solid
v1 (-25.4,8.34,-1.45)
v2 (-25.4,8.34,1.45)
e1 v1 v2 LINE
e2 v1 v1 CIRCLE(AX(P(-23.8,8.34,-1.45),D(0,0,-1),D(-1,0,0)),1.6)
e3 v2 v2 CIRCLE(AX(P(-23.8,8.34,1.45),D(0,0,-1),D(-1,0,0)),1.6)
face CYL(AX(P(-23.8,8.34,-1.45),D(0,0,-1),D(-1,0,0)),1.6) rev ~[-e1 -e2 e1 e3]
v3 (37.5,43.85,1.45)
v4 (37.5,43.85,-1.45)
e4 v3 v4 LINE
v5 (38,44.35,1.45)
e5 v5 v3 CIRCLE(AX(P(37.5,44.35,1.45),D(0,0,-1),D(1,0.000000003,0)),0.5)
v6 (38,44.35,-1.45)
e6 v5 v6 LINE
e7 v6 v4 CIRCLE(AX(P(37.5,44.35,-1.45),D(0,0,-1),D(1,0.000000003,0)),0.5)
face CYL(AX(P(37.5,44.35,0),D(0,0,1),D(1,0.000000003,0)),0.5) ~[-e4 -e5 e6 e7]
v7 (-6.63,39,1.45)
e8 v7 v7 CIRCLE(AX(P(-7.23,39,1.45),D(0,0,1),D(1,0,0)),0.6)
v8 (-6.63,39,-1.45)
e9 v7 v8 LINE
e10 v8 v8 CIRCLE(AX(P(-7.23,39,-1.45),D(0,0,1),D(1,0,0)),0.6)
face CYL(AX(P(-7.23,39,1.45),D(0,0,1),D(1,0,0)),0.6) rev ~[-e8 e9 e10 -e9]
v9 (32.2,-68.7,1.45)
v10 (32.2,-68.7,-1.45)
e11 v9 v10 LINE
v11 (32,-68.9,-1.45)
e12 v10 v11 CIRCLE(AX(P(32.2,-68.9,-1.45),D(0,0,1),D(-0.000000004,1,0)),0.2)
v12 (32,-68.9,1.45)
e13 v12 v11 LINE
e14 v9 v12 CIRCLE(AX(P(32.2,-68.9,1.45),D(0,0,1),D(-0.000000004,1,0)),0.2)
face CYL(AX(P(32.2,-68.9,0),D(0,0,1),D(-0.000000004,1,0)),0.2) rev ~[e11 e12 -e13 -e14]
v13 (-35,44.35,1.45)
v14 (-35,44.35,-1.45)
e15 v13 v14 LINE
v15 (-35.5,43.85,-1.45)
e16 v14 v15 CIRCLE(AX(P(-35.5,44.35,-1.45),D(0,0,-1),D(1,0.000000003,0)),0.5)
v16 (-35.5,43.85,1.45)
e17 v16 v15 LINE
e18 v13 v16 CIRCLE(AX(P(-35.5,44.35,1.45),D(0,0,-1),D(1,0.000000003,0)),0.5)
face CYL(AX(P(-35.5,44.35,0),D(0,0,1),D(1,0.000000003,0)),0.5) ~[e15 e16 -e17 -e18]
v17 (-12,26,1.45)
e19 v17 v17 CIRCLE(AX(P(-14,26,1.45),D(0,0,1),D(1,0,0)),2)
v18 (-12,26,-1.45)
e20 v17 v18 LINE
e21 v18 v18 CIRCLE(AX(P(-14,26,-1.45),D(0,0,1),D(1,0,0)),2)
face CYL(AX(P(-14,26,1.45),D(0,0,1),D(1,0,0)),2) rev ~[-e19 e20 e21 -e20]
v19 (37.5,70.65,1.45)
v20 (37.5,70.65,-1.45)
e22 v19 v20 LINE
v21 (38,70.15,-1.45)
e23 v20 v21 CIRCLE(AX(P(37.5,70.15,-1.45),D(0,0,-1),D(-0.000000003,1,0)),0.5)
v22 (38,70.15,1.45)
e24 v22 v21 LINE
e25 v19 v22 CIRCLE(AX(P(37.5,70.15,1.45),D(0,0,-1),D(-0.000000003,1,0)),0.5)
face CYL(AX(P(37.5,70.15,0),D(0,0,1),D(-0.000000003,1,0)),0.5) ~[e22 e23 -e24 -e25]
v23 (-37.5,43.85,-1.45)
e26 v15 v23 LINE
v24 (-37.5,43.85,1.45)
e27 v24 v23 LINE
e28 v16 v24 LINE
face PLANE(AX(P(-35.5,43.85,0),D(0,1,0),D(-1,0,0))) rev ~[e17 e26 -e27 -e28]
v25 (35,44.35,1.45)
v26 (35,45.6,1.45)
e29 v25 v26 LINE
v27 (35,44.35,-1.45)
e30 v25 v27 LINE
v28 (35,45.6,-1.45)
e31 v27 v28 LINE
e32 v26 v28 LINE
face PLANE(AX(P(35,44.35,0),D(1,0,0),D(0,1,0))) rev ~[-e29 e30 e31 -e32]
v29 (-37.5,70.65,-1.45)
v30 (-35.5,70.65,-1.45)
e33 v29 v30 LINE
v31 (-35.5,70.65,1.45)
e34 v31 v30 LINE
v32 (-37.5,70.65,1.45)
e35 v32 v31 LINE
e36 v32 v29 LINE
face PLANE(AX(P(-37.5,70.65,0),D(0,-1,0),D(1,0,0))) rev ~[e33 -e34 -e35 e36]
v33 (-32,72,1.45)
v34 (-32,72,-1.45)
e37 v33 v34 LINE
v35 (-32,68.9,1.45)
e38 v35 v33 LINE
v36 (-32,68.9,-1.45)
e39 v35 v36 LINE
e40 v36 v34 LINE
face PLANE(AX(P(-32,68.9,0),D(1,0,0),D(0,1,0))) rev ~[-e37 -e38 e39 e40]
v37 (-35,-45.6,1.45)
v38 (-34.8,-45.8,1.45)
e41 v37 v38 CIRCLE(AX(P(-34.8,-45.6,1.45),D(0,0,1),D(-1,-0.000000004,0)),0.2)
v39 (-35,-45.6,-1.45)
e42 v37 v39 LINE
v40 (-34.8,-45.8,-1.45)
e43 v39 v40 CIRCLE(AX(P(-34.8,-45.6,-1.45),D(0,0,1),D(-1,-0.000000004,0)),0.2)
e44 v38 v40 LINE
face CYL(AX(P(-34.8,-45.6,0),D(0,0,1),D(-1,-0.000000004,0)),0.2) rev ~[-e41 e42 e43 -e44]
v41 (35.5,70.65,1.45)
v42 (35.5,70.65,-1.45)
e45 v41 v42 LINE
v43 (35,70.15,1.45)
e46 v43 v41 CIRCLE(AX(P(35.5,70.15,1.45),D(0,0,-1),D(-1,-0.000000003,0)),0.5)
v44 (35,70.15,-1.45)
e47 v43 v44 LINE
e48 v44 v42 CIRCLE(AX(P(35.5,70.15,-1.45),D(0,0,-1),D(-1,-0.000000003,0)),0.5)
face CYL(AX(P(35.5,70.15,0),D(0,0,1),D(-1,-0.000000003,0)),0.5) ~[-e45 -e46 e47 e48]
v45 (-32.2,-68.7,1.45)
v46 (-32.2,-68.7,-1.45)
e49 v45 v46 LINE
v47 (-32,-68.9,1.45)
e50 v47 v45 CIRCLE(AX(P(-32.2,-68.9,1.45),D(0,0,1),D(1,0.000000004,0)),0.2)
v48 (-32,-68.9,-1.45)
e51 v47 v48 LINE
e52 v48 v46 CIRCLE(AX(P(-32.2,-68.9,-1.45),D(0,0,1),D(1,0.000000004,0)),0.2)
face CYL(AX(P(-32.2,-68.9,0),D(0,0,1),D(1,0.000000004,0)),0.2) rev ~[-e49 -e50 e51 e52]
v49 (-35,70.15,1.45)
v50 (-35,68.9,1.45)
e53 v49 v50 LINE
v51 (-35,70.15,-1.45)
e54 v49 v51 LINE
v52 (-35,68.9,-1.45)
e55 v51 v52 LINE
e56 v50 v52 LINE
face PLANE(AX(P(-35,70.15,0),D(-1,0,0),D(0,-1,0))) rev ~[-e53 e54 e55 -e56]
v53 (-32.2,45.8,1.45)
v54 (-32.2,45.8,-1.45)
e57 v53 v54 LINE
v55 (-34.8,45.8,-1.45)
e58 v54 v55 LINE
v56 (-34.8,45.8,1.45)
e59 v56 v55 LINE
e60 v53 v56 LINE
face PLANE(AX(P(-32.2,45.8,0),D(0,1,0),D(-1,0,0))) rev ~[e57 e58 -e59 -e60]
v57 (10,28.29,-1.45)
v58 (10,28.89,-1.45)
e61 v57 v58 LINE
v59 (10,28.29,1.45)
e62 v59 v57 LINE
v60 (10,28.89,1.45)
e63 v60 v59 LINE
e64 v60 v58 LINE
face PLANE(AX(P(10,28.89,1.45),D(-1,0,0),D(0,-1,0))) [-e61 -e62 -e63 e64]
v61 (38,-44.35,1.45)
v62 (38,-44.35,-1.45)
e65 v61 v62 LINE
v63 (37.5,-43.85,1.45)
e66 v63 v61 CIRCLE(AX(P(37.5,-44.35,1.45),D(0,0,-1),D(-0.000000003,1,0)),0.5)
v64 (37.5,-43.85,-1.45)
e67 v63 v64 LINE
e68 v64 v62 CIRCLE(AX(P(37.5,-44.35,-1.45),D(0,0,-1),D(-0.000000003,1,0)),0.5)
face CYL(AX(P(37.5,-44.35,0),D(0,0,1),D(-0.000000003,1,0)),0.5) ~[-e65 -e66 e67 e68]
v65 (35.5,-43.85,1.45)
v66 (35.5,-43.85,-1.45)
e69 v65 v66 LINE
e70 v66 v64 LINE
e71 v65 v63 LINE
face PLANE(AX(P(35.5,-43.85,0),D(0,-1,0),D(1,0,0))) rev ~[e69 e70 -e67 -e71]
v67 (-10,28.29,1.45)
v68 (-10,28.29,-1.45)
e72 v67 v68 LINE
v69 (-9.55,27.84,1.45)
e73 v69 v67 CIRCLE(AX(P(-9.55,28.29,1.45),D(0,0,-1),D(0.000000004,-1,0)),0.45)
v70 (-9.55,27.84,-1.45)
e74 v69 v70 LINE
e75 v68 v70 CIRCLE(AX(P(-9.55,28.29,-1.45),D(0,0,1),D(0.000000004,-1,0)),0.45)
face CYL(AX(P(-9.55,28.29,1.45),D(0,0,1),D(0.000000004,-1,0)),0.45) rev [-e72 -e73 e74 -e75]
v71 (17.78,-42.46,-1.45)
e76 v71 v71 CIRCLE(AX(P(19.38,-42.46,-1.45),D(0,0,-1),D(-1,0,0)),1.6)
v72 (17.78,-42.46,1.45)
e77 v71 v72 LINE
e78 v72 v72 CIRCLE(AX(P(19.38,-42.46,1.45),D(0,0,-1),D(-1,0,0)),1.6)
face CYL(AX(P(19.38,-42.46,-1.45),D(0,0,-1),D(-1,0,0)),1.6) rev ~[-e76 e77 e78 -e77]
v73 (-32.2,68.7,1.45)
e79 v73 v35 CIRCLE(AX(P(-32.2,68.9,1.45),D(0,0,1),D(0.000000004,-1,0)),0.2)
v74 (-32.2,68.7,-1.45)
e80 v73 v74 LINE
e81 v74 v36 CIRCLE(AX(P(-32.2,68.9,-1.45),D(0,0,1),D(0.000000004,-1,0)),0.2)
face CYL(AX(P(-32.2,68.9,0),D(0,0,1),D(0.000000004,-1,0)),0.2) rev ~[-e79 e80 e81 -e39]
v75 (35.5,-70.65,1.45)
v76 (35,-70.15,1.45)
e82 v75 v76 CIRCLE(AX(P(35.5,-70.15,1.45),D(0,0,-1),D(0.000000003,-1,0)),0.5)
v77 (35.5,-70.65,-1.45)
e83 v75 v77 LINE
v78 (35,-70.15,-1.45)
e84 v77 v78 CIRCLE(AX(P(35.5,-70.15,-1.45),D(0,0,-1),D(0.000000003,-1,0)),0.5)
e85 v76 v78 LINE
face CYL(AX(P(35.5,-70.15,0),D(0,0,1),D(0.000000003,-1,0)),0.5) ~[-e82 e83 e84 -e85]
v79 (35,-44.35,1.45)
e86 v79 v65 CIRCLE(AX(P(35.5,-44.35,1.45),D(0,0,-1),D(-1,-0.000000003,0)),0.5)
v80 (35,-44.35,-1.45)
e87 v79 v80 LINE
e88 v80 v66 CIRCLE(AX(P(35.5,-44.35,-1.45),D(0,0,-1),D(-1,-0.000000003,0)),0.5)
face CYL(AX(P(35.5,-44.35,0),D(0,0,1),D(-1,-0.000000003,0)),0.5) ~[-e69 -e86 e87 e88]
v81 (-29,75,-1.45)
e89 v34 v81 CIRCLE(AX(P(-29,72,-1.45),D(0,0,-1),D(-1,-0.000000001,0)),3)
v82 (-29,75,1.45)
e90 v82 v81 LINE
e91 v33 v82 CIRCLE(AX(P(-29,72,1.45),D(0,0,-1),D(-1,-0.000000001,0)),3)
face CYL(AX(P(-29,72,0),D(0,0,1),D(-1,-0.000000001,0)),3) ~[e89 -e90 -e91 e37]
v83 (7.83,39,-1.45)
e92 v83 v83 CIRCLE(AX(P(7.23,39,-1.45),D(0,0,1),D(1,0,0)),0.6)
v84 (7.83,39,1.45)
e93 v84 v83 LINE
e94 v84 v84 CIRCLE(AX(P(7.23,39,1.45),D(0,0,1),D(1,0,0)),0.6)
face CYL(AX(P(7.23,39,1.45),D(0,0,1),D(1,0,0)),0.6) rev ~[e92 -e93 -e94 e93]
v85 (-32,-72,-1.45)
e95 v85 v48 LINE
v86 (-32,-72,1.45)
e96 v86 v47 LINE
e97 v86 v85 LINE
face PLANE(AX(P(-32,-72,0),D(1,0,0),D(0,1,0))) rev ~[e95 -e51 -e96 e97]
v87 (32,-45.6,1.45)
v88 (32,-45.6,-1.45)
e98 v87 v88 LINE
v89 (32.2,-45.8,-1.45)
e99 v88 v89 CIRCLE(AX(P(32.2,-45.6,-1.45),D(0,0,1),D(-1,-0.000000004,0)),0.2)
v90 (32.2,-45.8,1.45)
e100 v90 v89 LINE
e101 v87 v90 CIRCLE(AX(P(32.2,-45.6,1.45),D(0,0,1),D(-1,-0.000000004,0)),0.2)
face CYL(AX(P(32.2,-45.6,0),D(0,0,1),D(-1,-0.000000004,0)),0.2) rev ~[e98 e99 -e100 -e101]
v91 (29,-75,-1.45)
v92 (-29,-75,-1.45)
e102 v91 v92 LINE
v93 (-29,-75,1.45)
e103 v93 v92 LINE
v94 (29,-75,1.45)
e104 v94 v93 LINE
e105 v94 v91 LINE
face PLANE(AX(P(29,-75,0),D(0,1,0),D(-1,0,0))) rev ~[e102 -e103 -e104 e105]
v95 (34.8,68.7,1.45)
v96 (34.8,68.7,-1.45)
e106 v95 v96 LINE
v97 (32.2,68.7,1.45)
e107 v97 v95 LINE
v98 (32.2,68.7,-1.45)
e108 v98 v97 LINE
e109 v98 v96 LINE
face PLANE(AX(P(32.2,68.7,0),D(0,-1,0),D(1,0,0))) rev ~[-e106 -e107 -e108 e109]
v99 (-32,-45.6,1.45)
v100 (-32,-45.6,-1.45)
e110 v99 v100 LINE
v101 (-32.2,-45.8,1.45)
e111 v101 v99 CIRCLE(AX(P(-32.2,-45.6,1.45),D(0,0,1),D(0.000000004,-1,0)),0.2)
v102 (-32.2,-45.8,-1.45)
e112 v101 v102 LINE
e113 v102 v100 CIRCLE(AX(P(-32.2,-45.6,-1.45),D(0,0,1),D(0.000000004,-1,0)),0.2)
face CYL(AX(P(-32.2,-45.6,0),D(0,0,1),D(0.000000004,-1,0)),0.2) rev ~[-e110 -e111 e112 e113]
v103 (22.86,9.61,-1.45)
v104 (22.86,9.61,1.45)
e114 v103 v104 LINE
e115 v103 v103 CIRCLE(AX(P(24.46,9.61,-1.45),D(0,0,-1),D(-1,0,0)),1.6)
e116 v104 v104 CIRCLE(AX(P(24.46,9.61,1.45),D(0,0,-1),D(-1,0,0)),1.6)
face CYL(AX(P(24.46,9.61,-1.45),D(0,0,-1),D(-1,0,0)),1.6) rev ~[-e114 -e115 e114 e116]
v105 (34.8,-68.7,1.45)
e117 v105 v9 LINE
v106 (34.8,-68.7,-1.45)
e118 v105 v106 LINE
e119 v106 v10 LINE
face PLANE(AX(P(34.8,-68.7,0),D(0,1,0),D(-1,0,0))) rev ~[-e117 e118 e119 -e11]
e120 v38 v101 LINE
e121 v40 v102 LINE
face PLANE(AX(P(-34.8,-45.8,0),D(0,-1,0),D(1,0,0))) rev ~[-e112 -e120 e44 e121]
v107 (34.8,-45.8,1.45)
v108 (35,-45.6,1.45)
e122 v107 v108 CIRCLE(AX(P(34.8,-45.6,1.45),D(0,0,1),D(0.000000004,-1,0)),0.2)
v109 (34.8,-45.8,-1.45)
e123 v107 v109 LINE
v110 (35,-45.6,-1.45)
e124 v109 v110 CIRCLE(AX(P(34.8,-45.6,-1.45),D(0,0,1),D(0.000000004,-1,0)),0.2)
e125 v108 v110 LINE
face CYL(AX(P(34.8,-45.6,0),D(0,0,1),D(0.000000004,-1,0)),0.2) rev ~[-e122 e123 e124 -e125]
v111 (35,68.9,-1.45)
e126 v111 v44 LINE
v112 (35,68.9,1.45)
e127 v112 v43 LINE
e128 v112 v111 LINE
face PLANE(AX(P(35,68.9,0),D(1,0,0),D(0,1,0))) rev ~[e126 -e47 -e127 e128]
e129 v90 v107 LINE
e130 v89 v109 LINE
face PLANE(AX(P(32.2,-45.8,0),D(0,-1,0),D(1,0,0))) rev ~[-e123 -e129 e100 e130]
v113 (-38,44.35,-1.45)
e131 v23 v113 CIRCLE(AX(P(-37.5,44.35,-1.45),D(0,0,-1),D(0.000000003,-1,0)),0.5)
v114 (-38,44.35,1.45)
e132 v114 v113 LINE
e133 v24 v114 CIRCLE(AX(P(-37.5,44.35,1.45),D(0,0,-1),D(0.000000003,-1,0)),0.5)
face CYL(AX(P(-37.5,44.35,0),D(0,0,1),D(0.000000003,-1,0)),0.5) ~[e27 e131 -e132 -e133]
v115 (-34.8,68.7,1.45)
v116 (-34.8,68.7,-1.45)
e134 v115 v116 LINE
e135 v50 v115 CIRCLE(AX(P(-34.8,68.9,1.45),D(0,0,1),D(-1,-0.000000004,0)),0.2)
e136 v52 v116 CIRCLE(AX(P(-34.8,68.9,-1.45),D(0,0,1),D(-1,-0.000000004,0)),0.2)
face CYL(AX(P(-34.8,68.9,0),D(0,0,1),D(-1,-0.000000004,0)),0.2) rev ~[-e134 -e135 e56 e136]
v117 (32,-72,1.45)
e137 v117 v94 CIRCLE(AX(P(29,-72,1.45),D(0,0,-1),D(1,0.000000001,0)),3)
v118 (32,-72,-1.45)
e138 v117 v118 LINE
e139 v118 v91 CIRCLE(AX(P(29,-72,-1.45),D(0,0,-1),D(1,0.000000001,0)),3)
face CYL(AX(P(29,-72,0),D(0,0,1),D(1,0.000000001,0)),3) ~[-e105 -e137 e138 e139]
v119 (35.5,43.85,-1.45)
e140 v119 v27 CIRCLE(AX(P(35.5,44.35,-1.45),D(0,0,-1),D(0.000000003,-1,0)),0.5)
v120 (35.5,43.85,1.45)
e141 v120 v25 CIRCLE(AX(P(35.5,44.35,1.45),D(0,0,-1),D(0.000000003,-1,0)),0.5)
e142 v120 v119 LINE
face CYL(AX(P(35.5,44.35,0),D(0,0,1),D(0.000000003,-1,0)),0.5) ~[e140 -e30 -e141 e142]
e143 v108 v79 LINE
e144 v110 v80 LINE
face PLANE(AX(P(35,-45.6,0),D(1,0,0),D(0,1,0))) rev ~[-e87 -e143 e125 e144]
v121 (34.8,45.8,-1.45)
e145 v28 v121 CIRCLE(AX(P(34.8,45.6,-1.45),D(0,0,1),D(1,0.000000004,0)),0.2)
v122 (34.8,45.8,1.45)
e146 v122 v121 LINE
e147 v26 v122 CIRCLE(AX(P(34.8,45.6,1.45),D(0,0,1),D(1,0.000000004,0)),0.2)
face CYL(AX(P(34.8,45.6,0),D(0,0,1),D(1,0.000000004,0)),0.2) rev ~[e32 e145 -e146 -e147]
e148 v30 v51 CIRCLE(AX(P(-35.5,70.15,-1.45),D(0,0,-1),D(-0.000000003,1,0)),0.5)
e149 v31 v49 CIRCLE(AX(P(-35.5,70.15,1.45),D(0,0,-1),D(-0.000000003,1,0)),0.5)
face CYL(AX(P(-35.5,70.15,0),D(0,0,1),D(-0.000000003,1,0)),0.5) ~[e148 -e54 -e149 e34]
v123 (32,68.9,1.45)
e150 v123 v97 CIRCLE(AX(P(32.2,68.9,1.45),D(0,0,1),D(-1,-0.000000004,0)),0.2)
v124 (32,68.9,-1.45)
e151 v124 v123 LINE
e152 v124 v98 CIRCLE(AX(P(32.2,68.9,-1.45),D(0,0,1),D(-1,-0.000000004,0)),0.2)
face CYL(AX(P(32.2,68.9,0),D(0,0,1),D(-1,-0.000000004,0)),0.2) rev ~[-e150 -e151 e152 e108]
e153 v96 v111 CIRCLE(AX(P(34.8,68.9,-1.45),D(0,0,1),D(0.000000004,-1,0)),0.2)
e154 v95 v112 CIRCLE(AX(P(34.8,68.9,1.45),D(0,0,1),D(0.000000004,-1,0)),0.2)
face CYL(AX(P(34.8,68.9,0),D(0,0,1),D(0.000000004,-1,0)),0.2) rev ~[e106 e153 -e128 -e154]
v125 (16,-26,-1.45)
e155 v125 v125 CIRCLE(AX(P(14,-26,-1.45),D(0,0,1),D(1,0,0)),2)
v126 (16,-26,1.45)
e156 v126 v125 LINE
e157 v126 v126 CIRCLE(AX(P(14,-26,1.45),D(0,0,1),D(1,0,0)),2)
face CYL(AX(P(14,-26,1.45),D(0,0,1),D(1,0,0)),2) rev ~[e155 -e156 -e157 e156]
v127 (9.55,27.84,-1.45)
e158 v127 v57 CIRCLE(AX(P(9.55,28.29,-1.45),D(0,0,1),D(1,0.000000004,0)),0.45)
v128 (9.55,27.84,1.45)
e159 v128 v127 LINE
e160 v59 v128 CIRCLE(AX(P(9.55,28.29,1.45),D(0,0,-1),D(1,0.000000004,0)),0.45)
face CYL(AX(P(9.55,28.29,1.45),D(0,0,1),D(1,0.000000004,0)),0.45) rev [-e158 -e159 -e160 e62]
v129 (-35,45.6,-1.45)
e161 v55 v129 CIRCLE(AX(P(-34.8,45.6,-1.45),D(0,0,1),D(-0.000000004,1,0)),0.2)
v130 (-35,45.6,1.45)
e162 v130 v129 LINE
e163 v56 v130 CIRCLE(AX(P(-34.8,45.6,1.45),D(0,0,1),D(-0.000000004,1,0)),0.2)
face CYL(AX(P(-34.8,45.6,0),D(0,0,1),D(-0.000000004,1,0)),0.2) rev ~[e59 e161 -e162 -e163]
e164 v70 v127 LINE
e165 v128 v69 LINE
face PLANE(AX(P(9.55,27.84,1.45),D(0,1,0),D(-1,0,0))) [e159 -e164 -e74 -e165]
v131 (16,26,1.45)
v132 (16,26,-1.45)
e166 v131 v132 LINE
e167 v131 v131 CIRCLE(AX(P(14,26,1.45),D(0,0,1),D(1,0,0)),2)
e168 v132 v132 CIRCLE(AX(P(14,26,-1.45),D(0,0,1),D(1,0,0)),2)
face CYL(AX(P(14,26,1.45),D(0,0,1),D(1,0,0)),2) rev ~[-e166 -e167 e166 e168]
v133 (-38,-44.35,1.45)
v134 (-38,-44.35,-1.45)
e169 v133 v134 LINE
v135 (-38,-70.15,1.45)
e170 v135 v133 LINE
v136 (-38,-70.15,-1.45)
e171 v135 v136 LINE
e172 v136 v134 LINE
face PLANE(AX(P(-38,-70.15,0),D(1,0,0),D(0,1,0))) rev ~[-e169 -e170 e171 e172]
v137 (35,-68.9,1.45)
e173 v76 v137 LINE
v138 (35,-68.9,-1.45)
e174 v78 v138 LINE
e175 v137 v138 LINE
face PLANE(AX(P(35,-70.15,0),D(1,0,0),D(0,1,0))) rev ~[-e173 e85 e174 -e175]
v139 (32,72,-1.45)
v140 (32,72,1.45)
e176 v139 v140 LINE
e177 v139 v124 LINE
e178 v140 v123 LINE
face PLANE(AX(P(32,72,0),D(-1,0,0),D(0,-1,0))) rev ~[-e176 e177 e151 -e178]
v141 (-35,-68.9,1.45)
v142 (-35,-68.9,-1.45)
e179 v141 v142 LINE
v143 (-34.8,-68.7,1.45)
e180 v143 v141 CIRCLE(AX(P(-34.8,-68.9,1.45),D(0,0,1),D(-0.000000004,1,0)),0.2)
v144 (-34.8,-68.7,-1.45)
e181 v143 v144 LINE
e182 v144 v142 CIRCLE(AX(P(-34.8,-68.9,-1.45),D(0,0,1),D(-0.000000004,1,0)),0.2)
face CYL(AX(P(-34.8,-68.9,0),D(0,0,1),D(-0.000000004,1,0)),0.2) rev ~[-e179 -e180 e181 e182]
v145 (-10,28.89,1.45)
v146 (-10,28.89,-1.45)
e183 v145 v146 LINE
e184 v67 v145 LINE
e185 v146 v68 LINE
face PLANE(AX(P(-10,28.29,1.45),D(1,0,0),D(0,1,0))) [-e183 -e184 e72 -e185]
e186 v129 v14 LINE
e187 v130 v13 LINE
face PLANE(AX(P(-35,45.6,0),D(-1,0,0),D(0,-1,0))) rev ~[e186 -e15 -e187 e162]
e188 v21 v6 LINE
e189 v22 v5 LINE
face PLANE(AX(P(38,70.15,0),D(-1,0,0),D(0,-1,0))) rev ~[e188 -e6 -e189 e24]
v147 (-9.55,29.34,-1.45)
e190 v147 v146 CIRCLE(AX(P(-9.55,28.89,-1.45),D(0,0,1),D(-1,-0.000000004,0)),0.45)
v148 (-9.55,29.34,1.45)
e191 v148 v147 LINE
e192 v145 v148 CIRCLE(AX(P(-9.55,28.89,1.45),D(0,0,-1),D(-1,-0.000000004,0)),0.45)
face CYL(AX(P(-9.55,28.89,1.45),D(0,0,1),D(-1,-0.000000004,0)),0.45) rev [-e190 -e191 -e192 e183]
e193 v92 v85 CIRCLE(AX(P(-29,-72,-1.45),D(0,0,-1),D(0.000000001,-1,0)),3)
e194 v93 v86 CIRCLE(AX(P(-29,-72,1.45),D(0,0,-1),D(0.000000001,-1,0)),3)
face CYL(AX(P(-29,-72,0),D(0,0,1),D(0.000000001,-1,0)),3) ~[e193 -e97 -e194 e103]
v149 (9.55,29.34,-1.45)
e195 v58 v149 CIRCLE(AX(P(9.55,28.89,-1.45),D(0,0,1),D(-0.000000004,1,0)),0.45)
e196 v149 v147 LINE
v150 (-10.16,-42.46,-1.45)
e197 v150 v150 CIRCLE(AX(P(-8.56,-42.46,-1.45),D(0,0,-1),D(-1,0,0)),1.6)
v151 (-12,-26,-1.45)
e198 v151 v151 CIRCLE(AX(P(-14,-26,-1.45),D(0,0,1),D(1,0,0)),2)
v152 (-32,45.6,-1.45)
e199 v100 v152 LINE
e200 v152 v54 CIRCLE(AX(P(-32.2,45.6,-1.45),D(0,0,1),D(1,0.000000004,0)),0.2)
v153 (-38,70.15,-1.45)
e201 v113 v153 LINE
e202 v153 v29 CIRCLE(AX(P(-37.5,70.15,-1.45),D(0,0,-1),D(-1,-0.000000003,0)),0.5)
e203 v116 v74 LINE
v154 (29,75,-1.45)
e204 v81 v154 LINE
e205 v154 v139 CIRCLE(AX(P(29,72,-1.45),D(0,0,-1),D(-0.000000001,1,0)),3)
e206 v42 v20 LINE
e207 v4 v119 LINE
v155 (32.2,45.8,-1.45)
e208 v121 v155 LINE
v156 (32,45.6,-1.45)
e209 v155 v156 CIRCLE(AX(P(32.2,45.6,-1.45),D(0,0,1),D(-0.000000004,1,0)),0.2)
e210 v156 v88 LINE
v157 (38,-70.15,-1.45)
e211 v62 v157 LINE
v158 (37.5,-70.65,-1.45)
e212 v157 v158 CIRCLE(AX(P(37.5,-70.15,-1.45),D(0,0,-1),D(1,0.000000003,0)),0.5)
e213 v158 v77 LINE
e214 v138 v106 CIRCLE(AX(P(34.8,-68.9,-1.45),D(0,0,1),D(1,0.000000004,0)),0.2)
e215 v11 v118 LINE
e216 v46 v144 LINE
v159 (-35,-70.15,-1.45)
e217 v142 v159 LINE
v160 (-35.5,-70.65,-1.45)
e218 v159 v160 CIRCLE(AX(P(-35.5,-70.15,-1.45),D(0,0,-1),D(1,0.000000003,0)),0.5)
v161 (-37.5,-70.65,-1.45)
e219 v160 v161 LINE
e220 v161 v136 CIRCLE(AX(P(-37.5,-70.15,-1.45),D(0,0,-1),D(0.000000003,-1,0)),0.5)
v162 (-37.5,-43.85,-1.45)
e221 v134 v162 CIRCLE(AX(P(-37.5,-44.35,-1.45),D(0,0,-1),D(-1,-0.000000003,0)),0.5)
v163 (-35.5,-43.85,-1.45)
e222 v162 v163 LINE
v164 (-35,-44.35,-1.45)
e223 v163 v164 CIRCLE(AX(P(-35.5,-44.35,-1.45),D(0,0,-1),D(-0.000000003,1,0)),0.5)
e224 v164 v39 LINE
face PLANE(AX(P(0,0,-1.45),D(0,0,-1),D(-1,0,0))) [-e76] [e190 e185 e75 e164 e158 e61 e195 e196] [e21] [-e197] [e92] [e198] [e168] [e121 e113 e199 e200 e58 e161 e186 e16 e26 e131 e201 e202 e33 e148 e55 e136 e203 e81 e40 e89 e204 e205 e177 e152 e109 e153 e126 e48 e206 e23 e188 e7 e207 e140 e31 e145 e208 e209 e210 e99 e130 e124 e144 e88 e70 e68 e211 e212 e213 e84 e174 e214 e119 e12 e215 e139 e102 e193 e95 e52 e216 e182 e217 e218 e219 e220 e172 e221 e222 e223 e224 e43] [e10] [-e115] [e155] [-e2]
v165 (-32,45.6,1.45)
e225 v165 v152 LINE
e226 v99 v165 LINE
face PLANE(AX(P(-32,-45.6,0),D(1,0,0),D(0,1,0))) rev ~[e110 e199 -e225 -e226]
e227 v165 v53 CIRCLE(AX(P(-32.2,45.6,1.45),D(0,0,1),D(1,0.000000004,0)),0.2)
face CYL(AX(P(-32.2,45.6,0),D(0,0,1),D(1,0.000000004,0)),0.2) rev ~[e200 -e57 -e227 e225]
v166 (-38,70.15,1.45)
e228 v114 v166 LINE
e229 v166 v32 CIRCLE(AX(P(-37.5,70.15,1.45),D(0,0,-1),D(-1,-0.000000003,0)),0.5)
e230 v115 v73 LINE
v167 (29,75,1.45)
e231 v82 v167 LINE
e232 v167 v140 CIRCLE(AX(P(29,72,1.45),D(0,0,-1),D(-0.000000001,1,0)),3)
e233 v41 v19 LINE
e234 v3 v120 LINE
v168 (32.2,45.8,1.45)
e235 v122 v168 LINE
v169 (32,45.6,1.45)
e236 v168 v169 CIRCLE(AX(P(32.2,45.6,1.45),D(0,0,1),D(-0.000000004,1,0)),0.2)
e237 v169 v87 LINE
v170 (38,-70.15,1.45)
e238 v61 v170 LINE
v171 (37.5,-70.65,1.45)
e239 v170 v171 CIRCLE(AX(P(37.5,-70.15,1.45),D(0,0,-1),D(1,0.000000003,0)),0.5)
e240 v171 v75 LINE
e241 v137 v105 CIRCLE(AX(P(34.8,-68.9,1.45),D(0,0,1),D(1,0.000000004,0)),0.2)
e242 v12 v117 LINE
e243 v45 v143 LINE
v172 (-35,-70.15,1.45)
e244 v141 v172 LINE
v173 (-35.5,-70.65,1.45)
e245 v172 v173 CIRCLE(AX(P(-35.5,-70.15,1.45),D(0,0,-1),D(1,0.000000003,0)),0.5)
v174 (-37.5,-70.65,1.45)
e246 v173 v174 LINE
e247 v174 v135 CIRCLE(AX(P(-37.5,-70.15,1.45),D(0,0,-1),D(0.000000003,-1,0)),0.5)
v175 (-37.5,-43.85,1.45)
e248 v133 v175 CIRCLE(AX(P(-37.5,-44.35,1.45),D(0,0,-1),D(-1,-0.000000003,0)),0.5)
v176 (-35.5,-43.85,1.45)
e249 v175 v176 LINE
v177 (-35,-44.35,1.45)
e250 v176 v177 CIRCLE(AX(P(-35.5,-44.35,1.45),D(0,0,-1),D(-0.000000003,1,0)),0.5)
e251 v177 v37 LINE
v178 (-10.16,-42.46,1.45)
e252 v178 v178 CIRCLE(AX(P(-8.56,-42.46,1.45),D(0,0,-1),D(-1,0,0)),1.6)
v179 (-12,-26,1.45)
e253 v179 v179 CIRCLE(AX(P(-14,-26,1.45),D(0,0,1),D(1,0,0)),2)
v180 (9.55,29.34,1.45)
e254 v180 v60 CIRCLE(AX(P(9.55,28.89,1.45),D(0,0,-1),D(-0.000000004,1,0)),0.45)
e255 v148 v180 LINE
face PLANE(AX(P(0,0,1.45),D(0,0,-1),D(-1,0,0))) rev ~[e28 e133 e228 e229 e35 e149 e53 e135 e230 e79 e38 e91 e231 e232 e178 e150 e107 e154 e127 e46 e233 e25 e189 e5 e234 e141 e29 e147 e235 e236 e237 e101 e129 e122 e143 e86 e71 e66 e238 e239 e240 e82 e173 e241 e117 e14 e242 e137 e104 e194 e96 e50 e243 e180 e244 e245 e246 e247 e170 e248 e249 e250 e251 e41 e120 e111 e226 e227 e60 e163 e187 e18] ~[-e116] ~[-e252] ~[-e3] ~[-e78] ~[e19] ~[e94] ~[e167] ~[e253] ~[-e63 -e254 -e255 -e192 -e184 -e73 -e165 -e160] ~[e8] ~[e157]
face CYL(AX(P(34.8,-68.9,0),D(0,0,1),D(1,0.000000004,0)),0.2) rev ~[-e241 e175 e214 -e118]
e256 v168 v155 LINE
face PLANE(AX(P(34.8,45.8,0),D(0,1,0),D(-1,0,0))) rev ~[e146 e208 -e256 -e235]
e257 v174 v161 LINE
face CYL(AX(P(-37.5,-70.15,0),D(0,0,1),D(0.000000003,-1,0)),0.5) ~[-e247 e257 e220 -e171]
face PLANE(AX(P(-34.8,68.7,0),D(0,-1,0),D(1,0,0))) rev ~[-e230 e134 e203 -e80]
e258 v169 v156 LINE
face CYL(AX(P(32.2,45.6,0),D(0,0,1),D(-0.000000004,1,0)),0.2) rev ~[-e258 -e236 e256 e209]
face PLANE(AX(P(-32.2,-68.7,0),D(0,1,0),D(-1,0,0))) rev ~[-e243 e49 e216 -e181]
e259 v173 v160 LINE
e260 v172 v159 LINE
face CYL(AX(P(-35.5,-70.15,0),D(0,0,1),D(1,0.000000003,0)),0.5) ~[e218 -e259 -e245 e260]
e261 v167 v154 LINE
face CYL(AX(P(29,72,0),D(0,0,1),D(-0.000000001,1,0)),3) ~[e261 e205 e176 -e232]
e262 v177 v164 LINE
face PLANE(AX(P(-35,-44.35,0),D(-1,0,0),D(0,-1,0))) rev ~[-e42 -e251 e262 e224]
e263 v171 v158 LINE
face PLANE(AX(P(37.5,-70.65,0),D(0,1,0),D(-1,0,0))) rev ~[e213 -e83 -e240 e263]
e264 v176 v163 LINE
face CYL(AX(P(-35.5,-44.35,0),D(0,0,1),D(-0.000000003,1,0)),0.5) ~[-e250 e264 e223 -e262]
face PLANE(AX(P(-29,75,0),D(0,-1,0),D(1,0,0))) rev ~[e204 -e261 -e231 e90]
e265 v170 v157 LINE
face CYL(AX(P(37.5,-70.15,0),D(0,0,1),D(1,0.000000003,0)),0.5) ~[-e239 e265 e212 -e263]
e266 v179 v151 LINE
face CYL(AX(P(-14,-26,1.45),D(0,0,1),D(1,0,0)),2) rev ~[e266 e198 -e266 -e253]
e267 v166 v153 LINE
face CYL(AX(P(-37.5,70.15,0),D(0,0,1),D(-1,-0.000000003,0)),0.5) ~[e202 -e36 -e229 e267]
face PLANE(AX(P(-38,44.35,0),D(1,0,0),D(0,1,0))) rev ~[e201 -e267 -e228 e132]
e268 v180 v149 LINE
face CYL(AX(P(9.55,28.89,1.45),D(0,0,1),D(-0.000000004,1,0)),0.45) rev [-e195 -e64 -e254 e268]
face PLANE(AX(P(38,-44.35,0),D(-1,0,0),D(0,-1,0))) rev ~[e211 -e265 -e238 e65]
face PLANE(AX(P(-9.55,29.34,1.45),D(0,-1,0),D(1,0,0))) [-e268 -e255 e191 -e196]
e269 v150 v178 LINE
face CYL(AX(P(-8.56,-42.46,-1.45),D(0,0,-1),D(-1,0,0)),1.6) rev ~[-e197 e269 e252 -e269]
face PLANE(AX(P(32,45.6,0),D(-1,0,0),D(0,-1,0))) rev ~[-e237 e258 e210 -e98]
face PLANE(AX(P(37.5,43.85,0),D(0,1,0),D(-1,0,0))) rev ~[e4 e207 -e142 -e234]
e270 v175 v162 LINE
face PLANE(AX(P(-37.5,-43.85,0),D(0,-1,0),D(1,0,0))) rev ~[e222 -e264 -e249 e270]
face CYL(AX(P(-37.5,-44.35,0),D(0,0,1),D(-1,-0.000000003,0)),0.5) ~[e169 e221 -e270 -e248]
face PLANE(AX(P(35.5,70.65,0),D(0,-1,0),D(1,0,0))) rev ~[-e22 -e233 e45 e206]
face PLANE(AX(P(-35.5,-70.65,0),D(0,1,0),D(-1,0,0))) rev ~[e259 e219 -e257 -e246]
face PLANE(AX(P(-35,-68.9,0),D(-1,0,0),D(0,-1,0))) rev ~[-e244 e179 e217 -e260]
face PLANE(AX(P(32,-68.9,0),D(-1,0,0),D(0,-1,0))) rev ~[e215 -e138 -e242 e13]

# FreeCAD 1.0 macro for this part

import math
import FreeCAD as App
import Part
import Sketcher
from FreeCAD import Vector

doc = App.newDocument("Part")
body = doc.addObject("PartDesign::Body", "Body")

# Sketch on XY plane
sketch1 = body.newObject("Sketcher::SketchObject", "Sketch")
sketch1.AttachmentSupport = (doc.getObject("XY_Plane"), [""])
sketch1.MapMode = "FlatFace"
sketch1.addGeometry([
    Part.LineSegment(Vector(34.8, 68.7, 0), Vector(32.2, 68.7, 0)),  # 0
    Part.ArcOfCircle(Part.Circle(Vector(32.2, 68.9, 0), Vector(0, 0, 1), 0.2), math.radians(-180), math.radians(-90)),  # 1
    Part.LineSegment(Vector(32, 68.9, 0), Vector(32, 72, 0)),  # 2
    Part.ArcOfCircle(Part.Circle(Vector(29, 72, 0), Vector(0, 0, 1), 3), math.radians(0), math.radians(90)),  # 3
    Part.LineSegment(Vector(29, 75, 0), Vector(-29, 75, 0)),  # 4
    Part.ArcOfCircle(Part.Circle(Vector(-29, 72, 0), Vector(0, 0, 1), 3), math.radians(90), math.radians(180)),  # 5
    Part.LineSegment(Vector(-32, 72, 0), Vector(-32, 68.9, 0)),  # 6
    Part.ArcOfCircle(Part.Circle(Vector(-32.2, 68.9, 0), Vector(0, 0, 1), 0.2), math.radians(-90), math.radians(0)),  # 7
    Part.LineSegment(Vector(-32.2, 68.7, 0), Vector(-34.8, 68.7, 0)),  # 8
    Part.ArcOfCircle(Part.Circle(Vector(-34.8, 68.9, 0), Vector(0, 0, 1), 0.2), math.radians(-180), math.radians(-90)),  # 9
    Part.LineSegment(Vector(-35, 68.9, 0), Vector(-35, 70.15, 0)),  # 10
    Part.ArcOfCircle(Part.Circle(Vector(-35.5, 70.15, 0), Vector(0, 0, 1), 0.5), math.radians(0), math.radians(90)),  # 11
    Part.LineSegment(Vector(-35.5, 70.65, 0), Vector(-37.5, 70.65, 0)),  # 12
    Part.ArcOfCircle(Part.Circle(Vector(-37.5, 70.15, 0), Vector(0, 0, 1), 0.5), math.radians(90), math.radians(180)),  # 13
    Part.LineSegment(Vector(-38, 70.15, 0), Vector(-38, 44.35, 0)),  # 14
    Part.ArcOfCircle(Part.Circle(Vector(-37.5, 44.35, 0), Vector(0, 0, 1), 0.5), math.radians(180), math.radians(270)),  # 15
    Part.LineSegment(Vector(-37.5, 43.85, 0), Vector(-35.5, 43.85, 0)),  # 16
    Part.ArcOfCircle(Part.Circle(Vector(-35.5, 44.35, 0), Vector(0, 0, 1), 0.5), math.radians(-90), math.radians(0)),  # 17
    Part.LineSegment(Vector(-35, 44.35, 0), Vector(-35, 45.6, 0)),  # 18
    Part.ArcOfCircle(Part.Circle(Vector(-34.8, 45.6, 0), Vector(0, 0, 1), 0.2), math.radians(90), math.radians(180)),  # 19
    Part.LineSegment(Vector(-34.8, 45.8, 0), Vector(-32.2, 45.8, 0)),  # 20
    Part.ArcOfCircle(Part.Circle(Vector(-32.2, 45.6, 0), Vector(0, 0, 1), 0.2), math.radians(0), math.radians(90)),  # 21
    Part.LineSegment(Vector(-32, 45.6, 0), Vector(-32, -45.6, 0)),  # 22
    Part.ArcOfCircle(Part.Circle(Vector(-32.2, -45.6, 0), Vector(0, 0, 1), 0.2), math.radians(-90), math.radians(0)),  # 23
    Part.LineSegment(Vector(-32.2, -45.8, 0), Vector(-34.8, -45.8, 0)),  # 24
    Part.ArcOfCircle(Part.Circle(Vector(-34.8, -45.6, 0), Vector(0, 0, 1), 0.2), math.radians(-180), math.radians(-90)),  # 25
    Part.LineSegment(Vector(-35, -45.6, 0), Vector(-35, -44.35, 0)),  # 26
    Part.ArcOfCircle(Part.Circle(Vector(-35.5, -44.35, 0), Vector(0, 0, 1), 0.5), math.radians(0), math.radians(90)),  # 27
    Part.LineSegment(Vector(-35.5, -43.85, 0), Vector(-37.5, -43.85, 0)),  # 28
    Part.ArcOfCircle(Part.Circle(Vector(-37.5, -44.35, 0), Vector(0, 0, 1), 0.5), math.radians(90), math.radians(180)),  # 29
    Part.LineSegment(Vector(-38, -44.35, 0), Vector(-38, -70.15, 0)),  # 30
    Part.ArcOfCircle(Part.Circle(Vector(-37.5, -70.15, 0), Vector(0, 0, 1), 0.5), math.radians(180), math.radians(270)),  # 31
    Part.LineSegment(Vector(-37.5, -70.65, 0), Vector(-35.5, -70.65, 0)),  # 32
    Part.ArcOfCircle(Part.Circle(Vector(-35.5, -70.15, 0), Vector(0, 0, 1), 0.5), math.radians(-90), math.radians(0)),  # 33
    Part.LineSegment(Vector(-35, -70.15, 0), Vector(-35, -68.9, 0)),  # 34
    Part.ArcOfCircle(Part.Circle(Vector(-34.8, -68.9, 0), Vector(0, 0, 1), 0.2), math.radians(90), math.radians(180)),  # 35
    Part.LineSegment(Vector(-34.8, -68.7, 0), Vector(-32.2, -68.7, 0)),  # 36
    Part.ArcOfCircle(Part.Circle(Vector(-32.2, -68.9, 0), Vector(0, 0, 1), 0.2), math.radians(0), math.radians(90)),  # 37
    Part.LineSegment(Vector(-32, -68.9, 0), Vector(-32, -72, 0)),  # 38
    Part.ArcOfCircle(Part.Circle(Vector(-29, -72, 0), Vector(0, 0, 1), 3), math.radians(180), math.radians(270)),  # 39
    Part.LineSegment(Vector(-29, -75, 0), Vector(29, -75, 0)),  # 40
    Part.ArcOfCircle(Part.Circle(Vector(29, -72, 0), Vector(0, 0, 1), 3), math.radians(-90), math.radians(0)),  # 41
    Part.LineSegment(Vector(32, -72, 0), Vector(32, -68.9, 0)),  # 42
    Part.ArcOfCircle(Part.Circle(Vector(32.2, -68.9, 0), Vector(0, 0, 1), 0.2), math.radians(90), math.radians(180)),  # 43
    Part.LineSegment(Vector(32.2, -68.7, 0), Vector(34.8, -68.7, 0)),  # 44
    Part.ArcOfCircle(Part.Circle(Vector(34.8, -68.9, 0), Vector(0, 0, 1), 0.2), math.radians(0), math.radians(90)),  # 45
    Part.LineSegment(Vector(35, -68.9, 0), Vector(35, -70.15, 0)),  # 46
    Part.ArcOfCircle(Part.Circle(Vector(35.5, -70.15, 0), Vector(0, 0, 1), 0.5), math.radians(180), math.radians(270)),  # 47
    Part.LineSegment(Vector(35.5, -70.65, 0), Vector(37.5, -70.65, 0)),  # 48
    Part.ArcOfCircle(Part.Circle(Vector(37.5, -70.15, 0), Vector(0, 0, 1), 0.5), math.radians(-90), math.radians(0)),  # 49
    Part.LineSegment(Vector(38, -70.15, 0), Vector(38, -44.35, 0)),  # 50
    Part.ArcOfCircle(Part.Circle(Vector(37.5, -44.35, 0), Vector(0, 0, 1), 0.5), math.radians(0), math.radians(90)),  # 51
    Part.LineSegment(Vector(37.5, -43.85, 0), Vector(35.5, -43.85, 0)),  # 52
    Part.ArcOfCircle(Part.Circle(Vector(35.5, -44.35, 0), Vector(0, 0, 1), 0.5), math.radians(90), math.radians(180)),  # 53
    Part.LineSegment(Vector(35, -44.35, 0), Vector(35, -45.6, 0)),  # 54
    Part.ArcOfCircle(Part.Circle(Vector(34.8, -45.6, 0), Vector(0, 0, 1), 0.2), math.radians(-90), math.radians(0)),  # 55
    Part.LineSegment(Vector(34.8, -45.8, 0), Vector(32.2, -45.8, 0)),  # 56
    Part.ArcOfCircle(Part.Circle(Vector(32.2, -45.6, 0), Vector(0, 0, 1), 0.2), math.radians(-180), math.radians(-90)),  # 57
    Part.LineSegment(Vector(32, -45.6, 0), Vector(32, 45.6, 0)),  # 58
    Part.ArcOfCircle(Part.Circle(Vector(32.2, 45.6, 0), Vector(0, 0, 1), 0.2), math.radians(90), math.radians(180)),  # 59
    Part.LineSegment(Vector(32.2, 45.8, 0), Vector(34.8, 45.8, 0)),  # 60
    Part.ArcOfCircle(Part.Circle(Vector(34.8, 45.6, 0), Vector(0, 0, 1), 0.2), math.radians(0), math.radians(90)),  # 61
    Part.LineSegment(Vector(35, 45.6, 0), Vector(35, 44.35, 0)),  # 62
    Part.ArcOfCircle(Part.Circle(Vector(35.5, 44.35, 0), Vector(0, 0, 1), 0.5), math.radians(180), math.radians(270)),  # 63
    Part.LineSegment(Vector(35.5, 43.85, 0), Vector(37.5, 43.85, 0)),  # 64
    Part.ArcOfCircle(Part.Circle(Vector(37.5, 44.35, 0), Vector(0, 0, 1), 0.5), math.radians(-90), math.radians(0)),  # 65
    Part.LineSegment(Vector(38, 44.35, 0), Vector(38, 70.15, 0)),  # 66
    Part.ArcOfCircle(Part.Circle(Vector(37.5, 70.15, 0), Vector(0, 0, 1), 0.5), math.radians(0), math.radians(90)),  # 67
    Part.LineSegment(Vector(37.5, 70.65, 0), Vector(35.5, 70.65, 0)),  # 68
    Part.ArcOfCircle(Part.Circle(Vector(35.5, 70.15, 0), Vector(0, 0, 1), 0.5), math.radians(90), math.radians(180)),  # 69
    Part.LineSegment(Vector(35, 70.15, 0), Vector(35, 68.9, 0)),  # 70
    Part.ArcOfCircle(Part.Circle(Vector(34.8, 68.9, 0), Vector(0, 0, 1), 0.2), math.radians(-90), math.radians(0)),  # 71
], False)
sketch1.addConstraint([
    Sketcher.Constraint("Tangent", 0, 2, 1, 2),
    Sketcher.Constraint("Tangent", 1, 1, 2, 1),
    Sketcher.Constraint("Tangent", 2, 2, 3, 1),
    Sketcher.Constraint("Tangent", 3, 2, 4, 1),
    Sketcher.Constraint("Tangent", 4, 2, 5, 1),
    Sketcher.Constraint("Tangent", 5, 2, 6, 1),
    Sketcher.Constraint("Tangent", 6, 2, 7, 2),
    Sketcher.Constraint("Tangent", 7, 1, 8, 1),
    Sketcher.Constraint("Tangent", 8, 2, 9, 2),
    Sketcher.Constraint("Tangent", 9, 1, 10, 1),
    Sketcher.Constraint("Tangent", 10, 2, 11, 1),
    Sketcher.Constraint("Tangent", 11, 2, 12, 1),
    Sketcher.Constraint("Tangent", 12, 2, 13, 1),
    Sketcher.Constraint("Tangent", 13, 2, 14, 1),
    Sketcher.Constraint("Tangent", 14, 2, 15, 1),
    Sketcher.Constraint("Tangent", 15, 2, 16, 1),
    Sketcher.Constraint("Tangent", 16, 2, 17, 1),
    Sketcher.Constraint("Tangent", 17, 2, 18, 1),
    Sketcher.Constraint("Tangent", 18, 2, 19, 2),
    Sketcher.Constraint("Tangent", 19, 1, 20, 1),
    Sketcher.Constraint("Tangent", 20, 2, 21, 2),
    Sketcher.Constraint("Tangent", 21, 1, 22, 1),
    Sketcher.Constraint("Tangent", 22, 2, 23, 2),
    Sketcher.Constraint("Tangent", 23, 1, 24, 1),
    Sketcher.Constraint("Tangent", 24, 2, 25, 2),
    Sketcher.Constraint("Tangent", 25, 1, 26, 1),
    Sketcher.Constraint("Tangent", 26, 2, 27, 1),
    Sketcher.Constraint("Tangent", 27, 2, 28, 1),
    Sketcher.Constraint("Tangent", 28, 2, 29, 1),
    Sketcher.Constraint("Tangent", 29, 2, 30, 1),
    Sketcher.Constraint("Tangent", 30, 2, 31, 1),
    Sketcher.Constraint("Tangent", 31, 2, 32, 1),
    Sketcher.Constraint("Tangent", 32, 2, 33, 1),
    Sketcher.Constraint("Tangent", 33, 2, 34, 1),
    Sketcher.Constraint("Tangent", 34, 2, 35, 2),
    Sketcher.Constraint("Tangent", 35, 1, 36, 1),
    Sketcher.Constraint("Tangent", 36, 2, 37, 2),
    Sketcher.Constraint("Tangent", 37, 1, 38, 1),
    Sketcher.Constraint("Tangent", 38, 2, 39, 1),
    Sketcher.Constraint("Tangent", 39, 2, 40, 1),
    Sketcher.Constraint("Tangent", 40, 2, 41, 1),
    Sketcher.Constraint("Tangent", 41, 2, 42, 1),
    Sketcher.Constraint("Tangent", 42, 2, 43, 2),
    Sketcher.Constraint("Tangent", 43, 1, 44, 1),
    Sketcher.Constraint("Tangent", 44, 2, 45, 2),
    Sketcher.Constraint("Tangent", 45, 1, 46, 1),
    Sketcher.Constraint("Tangent", 46, 2, 47, 1),
    Sketcher.Constraint("Tangent", 47, 2, 48, 1),
    Sketcher.Constraint("Tangent", 48, 2, 49, 1),
    Sketcher.Constraint("Tangent", 49, 2, 50, 1),
    Sketcher.Constraint("Tangent", 50, 2, 51, 1),
    Sketcher.Constraint("Tangent", 51, 2, 52, 1),
    Sketcher.Constraint("Tangent", 52, 2, 53, 1),
    Sketcher.Constraint("Tangent", 53, 2, 54, 1),
    Sketcher.Constraint("Tangent", 54, 2, 55, 2),
    Sketcher.Constraint("Tangent", 55, 1, 56, 1),
    Sketcher.Constraint("Tangent", 56, 2, 57, 2),
    Sketcher.Constraint("Tangent", 57, 1, 58, 1),
    Sketcher.Constraint("Tangent", 58, 2, 59, 2),
    Sketcher.Constraint("Tangent", 59, 1, 60, 1),
    Sketcher.Constraint("Tangent", 60, 2, 61, 2),
    Sketcher.Constraint("Tangent", 61, 1, 62, 1),
    Sketcher.Constraint("Tangent", 62, 2, 63, 1),
    Sketcher.Constraint("Tangent", 63, 2, 64, 1),
    Sketcher.Constraint("Tangent", 64, 2, 65, 1),
    Sketcher.Constraint("Tangent", 65, 2, 66, 1),
    Sketcher.Constraint("Tangent", 66, 2, 67, 1),
    Sketcher.Constraint("Tangent", 67, 2, 68, 1),
    Sketcher.Constraint("Tangent", 68, 2, 69, 1),
    Sketcher.Constraint("Tangent", 69, 2, 70, 1),
    Sketcher.Constraint("Tangent", 70, 2, 71, 2),
    Sketcher.Constraint("Tangent", 71, 1, 0, 1),
    Sketcher.Constraint("Horizontal", 0),
    Sketcher.Constraint("Vertical", 2),
    Sketcher.Constraint("Horizontal", 4),
    Sketcher.Constraint("Vertical", 6),
    Sketcher.Constraint("Horizontal", 8),
    Sketcher.Constraint("Vertical", 10),
    Sketcher.Constraint("Horizontal", 12),
    Sketcher.Constraint("Vertical", 14),
    Sketcher.Constraint("Horizontal", 16),
    Sketcher.Constraint("Vertical", 18),
    Sketcher.Constraint("Horizontal", 20),
    Sketcher.Constraint("Vertical", 22),
    Sketcher.Constraint("Horizontal", 24),
    Sketcher.Constraint("Vertical", 26),
    Sketcher.Constraint("Horizontal", 28),
    Sketcher.Constraint("Vertical", 30),
    Sketcher.Constraint("Horizontal", 32),
    Sketcher.Constraint("Vertical", 34),
    Sketcher.Constraint("Horizontal", 36),
    Sketcher.Constraint("Vertical", 38),
    Sketcher.Constraint("Horizontal", 40),
    Sketcher.Constraint("Vertical", 42),
    Sketcher.Constraint("Horizontal", 44),
    Sketcher.Constraint("Vertical", 46),
    Sketcher.Constraint("Horizontal", 48),
    Sketcher.Constraint("Vertical", 50),
    Sketcher.Constraint("Horizontal", 52),
    Sketcher.Constraint("Vertical", 54),
    Sketcher.Constraint("Horizontal", 56),
    Sketcher.Constraint("Vertical", 58),
    Sketcher.Constraint("Horizontal", 60),
    Sketcher.Constraint("Vertical", 62),
    Sketcher.Constraint("Horizontal", 64),
    Sketcher.Constraint("Vertical", 66),
    Sketcher.Constraint("Horizontal", 68),
    Sketcher.Constraint("Vertical", 70),
    Sketcher.Constraint("Equal", 3, 5),
    Sketcher.Constraint("Equal", 1, 7),
    Sketcher.Constraint("Equal", 7, 9),
    Sketcher.Constraint("Equal", 11, 13),
    Sketcher.Constraint("Equal", 13, 15),
    Sketcher.Constraint("Equal", 15, 17),
    Sketcher.Constraint("Equal", 9, 19),
    Sketcher.Constraint("Equal", 19, 21),
    Sketcher.Constraint("Equal", 21, 23),
    Sketcher.Constraint("Equal", 23, 25),
    Sketcher.Constraint("Equal", 17, 27),
    Sketcher.Constraint("Equal", 27, 29),
    Sketcher.Constraint("Equal", 29, 31),
    Sketcher.Constraint("Equal", 31, 33),
    Sketcher.Constraint("Equal", 25, 35),
    Sketcher.Constraint("Equal", 35, 37),
    Sketcher.Constraint("Equal", 5, 39),
    Sketcher.Constraint("Equal", 39, 41),
    Sketcher.Constraint("Equal", 37, 43),
    Sketcher.Constraint("Equal", 43, 45),
    Sketcher.Constraint("Equal", 33, 47),
    Sketcher.Constraint("Equal", 47, 49),
    Sketcher.Constraint("Equal", 49, 51),
    Sketcher.Constraint("Equal", 51, 53),
    Sketcher.Constraint("Equal", 45, 55),
    Sketcher.Constraint("Equal", 55, 57),
    Sketcher.Constraint("Equal", 57, 59),
    Sketcher.Constraint("Equal", 59, 61),
    Sketcher.Constraint("Equal", 53, 63),
    Sketcher.Constraint("Equal", 63, 65),
    Sketcher.Constraint("Equal", 65, 67),
    Sketcher.Constraint("Equal", 67, 69),
    Sketcher.Constraint("Equal", 61, 71),
    Sketcher.Constraint("Symmetric", 1, 3, 37, 3, -1, 1),
    Sketcher.Constraint("Symmetric", 5, 3, 41, 3, -1, 1),
    Sketcher.Constraint("Symmetric", 9, 3, 45, 3, -1, 1),
    Sketcher.Constraint("Symmetric", 13, 3, 49, 3, -1, 1),
    Sketcher.Constraint("Symmetric", 17, 3, 53, 3, -1, 1),
    Sketcher.Constraint("Symmetric", 21, 3, 57, 3, -1, 1),
    Sketcher.Constraint("Symmetric", 25, 3, 61, 3, -1, 1),
    Sketcher.Constraint("Symmetric", 29, 3, 65, 3, -1, 1),
    Sketcher.Constraint("Symmetric", 33, 3, 69, 3, -1, 1),
    Sketcher.Constraint("Symmetric", 1, 3, 7, 3, -2),
    Sketcher.Constraint("Symmetric", 33, 3, 47, 3, -2),
    Sketcher.Constraint("Symmetric", 29, 3, 51, 3, -2),
    Sketcher.Constraint("Symmetric", 25, 3, 55, 3, -2),
    Sketcher.Constraint("Vertical", 11, 3, 17, 3),
    Sketcher.Constraint("Vertical", 7, 3, 21, 3),
    Sketcher.Constraint("Equal", 10, 18),
    Sketcher.Constraint("Radius", 3, 3.0),
    Sketcher.Constraint("Radius", 1, 0.2),
    Sketcher.Constraint("Radius", 11, 0.5),
    Sketcher.Constraint("DistanceX", 4, 2, 4, 1, 58.0),
    Sketcher.Constraint("DistanceX", 12, 2, 12, 1, 2.0),
    Sketcher.Constraint("DistanceX", 0, 2, 0, 1, 2.6),
    Sketcher.Constraint("DistanceY", 2, 1, 2, 2, 3.1),
    Sketcher.Constraint("DistanceY", 14, 2, 14, 1, 25.8),
    Sketcher.Constraint("DistanceY", 22, 2, 22, 1, 91.2),
    Sketcher.Constraint("DistanceY", -1, 1, 3, 3, 72.0),
])
pad1 = body.newObject("PartDesign::Pad", "Pad")
pad1.Profile = sketch1
pad1.Length = 2.9
pad1.Midplane = True

# Sketch on XY plane
sketch2 = body.newObject("Sketcher::SketchObject", "Sketch001")
sketch2.AttachmentSupport = (doc.getObject("XY_Plane"), [""])
sketch2.MapMode = "FlatFace"
sketch2.AttachmentOffset = App.Placement(Vector(0, 0, -1.45), App.Rotation())
sketch2.addGeometry(Part.Circle(Vector(-23.8, 8.34, 0), Vector(0, 0, 1), 1.6), False)
sketch2.addConstraint([
    Sketcher.Constraint("Diameter", 0, 3.2),
    Sketcher.Constraint("DistanceX", 0, 3, -1, 1, 23.8),
    Sketcher.Constraint("DistanceY", -1, 1, 0, 3, 8.34),
])
pocket1 = body.newObject("PartDesign::Pocket", "Pocket")
pocket1.Profile = sketch2
pocket1.Type = "UpToFirst"
pocket1.Reversed = True

# Sketch on XY plane
sketch3 = body.newObject("Sketcher::SketchObject", "Sketch002")
sketch3.AttachmentSupport = (doc.getObject("XY_Plane"), [""])
sketch3.MapMode = "FlatFace"
sketch3.AttachmentOffset = App.Placement(Vector(0, 0, -1.45), App.Rotation())
sketch3.addGeometry(Part.Circle(Vector(-8.56, -42.46, 0), Vector(0, 0, 1), 1.6), False)
sketch3.addConstraint([
    Sketcher.Constraint("Diameter", 0, 3.2),
    Sketcher.Constraint("DistanceX", 0, 3, -1, 1, 8.56),
    Sketcher.Constraint("DistanceY", 0, 3, -1, 1, 42.46),
])
pocket2 = body.newObject("PartDesign::Pocket", "Pocket001")
pocket2.Profile = sketch3
pocket2.Type = "UpToFirst"
pocket2.Reversed = True

# Sketch on XY plane
sketch4 = body.newObject("Sketcher::SketchObject", "Sketch003")
sketch4.AttachmentSupport = (doc.getObject("XY_Plane"), [""])
sketch4.MapMode = "FlatFace"
sketch4.AttachmentOffset = App.Placement(Vector(0, 0, -1.45), App.Rotation())
sketch4.addGeometry(Part.Circle(Vector(19.38, -42.46, 0), Vector(0, 0, 1), 1.6), False)
sketch4.addConstraint([
    Sketcher.Constraint("Diameter", 0, 3.2),
    Sketcher.Constraint("DistanceX", -1, 1, 0, 3, 19.38),
    Sketcher.Constraint("DistanceY", 0, 3, -1, 1, 42.46),
])
pocket3 = body.newObject("PartDesign::Pocket", "Pocket002")
pocket3.Profile = sketch4
pocket3.Type = "UpToFirst"
pocket3.Reversed = True

# Sketch on XY plane
sketch5 = body.newObject("Sketcher::SketchObject", "Sketch004")
sketch5.AttachmentSupport = (doc.getObject("XY_Plane"), [""])
sketch5.MapMode = "FlatFace"
sketch5.AttachmentOffset = App.Placement(Vector(0, 0, -1.45), App.Rotation())
sketch5.addGeometry(Part.Circle(Vector(24.46, 9.61, 0), Vector(0, 0, 1), 1.6), False)
sketch5.addConstraint([
    Sketcher.Constraint("Diameter", 0, 3.2),
    Sketcher.Constraint("DistanceX", -1, 1, 0, 3, 24.46),
    Sketcher.Constraint("DistanceY", -1, 1, 0, 3, 9.61),
])
pocket4 = body.newObject("PartDesign::Pocket", "Pocket003")
pocket4.Profile = sketch5
pocket4.Type = "UpToFirst"
pocket4.Reversed = True

# Sketch on XY plane
sketch6 = body.newObject("Sketcher::SketchObject", "Sketch005")
sketch6.AttachmentSupport = (doc.getObject("XY_Plane"), [""])
sketch6.MapMode = "FlatFace"
sketch6.AttachmentOffset = App.Placement(Vector(0, 0, 1.45), App.Rotation())
sketch6.addGeometry([
    Part.Circle(Vector(14, 26, 0), Vector(0, 0, 1), 2),
    Part.Circle(Vector(14, -26, 0), Vector(0, 0, 1), 2),
    Part.Circle(Vector(-14, 26, 0), Vector(0, 0, 1), 2),
    Part.Circle(Vector(-14, -26, 0), Vector(0, 0, 1), 2),
], False)
sketch6.addConstraint([
    Sketcher.Constraint("Equal", 0, 1),
    Sketcher.Constraint("Equal", 1, 2),
    Sketcher.Constraint("Equal", 2, 3),
    Sketcher.Constraint("Symmetric", 1, 3, 2, 3, -1, 1),
    Sketcher.Constraint("Symmetric", 0, 3, 3, 3, -1, 1),
    Sketcher.Constraint("Symmetric", 0, 3, 2, 3, -2),
    Sketcher.Constraint("Diameter", 0, 4.0),
    Sketcher.Constraint("DistanceX", -1, 1, 0, 3, 14.0),
    Sketcher.Constraint("DistanceY", -1, 1, 0, 3, 26.0),
])
pocket5 = body.newObject("PartDesign::Pocket", "Pocket004")
pocket5.Profile = sketch6
pocket5.Length = 10

# Sketch on XY plane
sketch7 = body.newObject("Sketcher::SketchObject", "Sketch006")
sketch7.AttachmentSupport = (doc.getObject("XY_Plane"), [""])
sketch7.MapMode = "FlatFace"
sketch7.AttachmentOffset = App.Placement(Vector(0, 0, 1.45), App.Rotation())
sketch7.addGeometry([
    Part.Circle(Vector(-7.23, 39, 0), Vector(0, 0, 1), 0.6),  # 0
    Part.Circle(Vector(7.23, 39, 0), Vector(0, 0, 1), 0.6),  # 1
    Part.LineSegment(Vector(9.55, 29.34, 0), Vector(-9.55, 29.34, 0)),  # 2
    Part.ArcOfCircle(Part.Circle(Vector(-9.55, 28.89, 0), Vector(0, 0, 1), 0.45), math.radians(90), math.radians(180)),  # 3
    Part.LineSegment(Vector(-10, 28.89, 0), Vector(-10, 28.29, 0)),  # 4
    Part.ArcOfCircle(Part.Circle(Vector(-9.55, 28.29, 0), Vector(0, 0, 1), 0.45), math.radians(180), math.radians(270)),  # 5
    Part.LineSegment(Vector(-9.55, 27.84, 0), Vector(9.55, 27.84, 0)),  # 6
    Part.ArcOfCircle(Part.Circle(Vector(9.55, 28.29, 0), Vector(0, 0, 1), 0.45), math.radians(-90), math.radians(0)),  # 7
    Part.LineSegment(Vector(10, 28.29, 0), Vector(10, 28.89, 0)),  # 8
    Part.ArcOfCircle(Part.Circle(Vector(9.55, 28.89, 0), Vector(0, 0, 1), 0.45), math.radians(0), math.radians(90)),  # 9
], False)
sketch7.addConstraint([
    Sketcher.Constraint("Tangent", 2, 2, 3, 1),
    Sketcher.Constraint("Tangent", 3, 2, 4, 1),
    Sketcher.Constraint("Tangent", 4, 2, 5, 1),
    Sketcher.Constraint("Tangent", 5, 2, 6, 1),
    Sketcher.Constraint("Tangent", 6, 2, 7, 1),
    Sketcher.Constraint("Tangent", 7, 2, 8, 1),
    Sketcher.Constraint("Tangent", 8, 2, 9, 1),
    Sketcher.Constraint("Tangent", 9, 2, 2, 1),
    Sketcher.Constraint("Horizontal", 2),
    Sketcher.Constraint("Vertical", 4),
    Sketcher.Constraint("Horizontal", 6),
    Sketcher.Constraint("Vertical", 8),
    Sketcher.Constraint("Equal", 0, 1),
    Sketcher.Constraint("Equal", 3, 5),
    Sketcher.Constraint("Equal", 5, 7),
    Sketcher.Constraint("Equal", 7, 9),
    Sketcher.Constraint("Symmetric", 0, 3, 1, 3, -2),
    Sketcher.Constraint("Diameter", 0, 1.2),
    Sketcher.Constraint("Radius", 3, 0.45),
    Sketcher.Constraint("DistanceX", 2, 2, 2, 1, 19.1),
    Sketcher.Constraint("DistanceY", 4, 2, 4, 1, 0.6),
    Sketcher.Constraint("DistanceY", -1, 1, 0, 3, 39.0),
    Sketcher.Constraint("DistanceX", 3, 2, -1, 1, 10.0),
    Sketcher.Constraint("DistanceX", 0, 3, -1, 1, 7.23),
    Sketcher.Constraint("DistanceY", -1, 1, 3, 3, 28.89),
])
pocket6 = body.newObject("PartDesign::Pocket", "Pocket005")
pocket6.Profile = sketch7
pocket6.Length = 10

doc.recompute()
